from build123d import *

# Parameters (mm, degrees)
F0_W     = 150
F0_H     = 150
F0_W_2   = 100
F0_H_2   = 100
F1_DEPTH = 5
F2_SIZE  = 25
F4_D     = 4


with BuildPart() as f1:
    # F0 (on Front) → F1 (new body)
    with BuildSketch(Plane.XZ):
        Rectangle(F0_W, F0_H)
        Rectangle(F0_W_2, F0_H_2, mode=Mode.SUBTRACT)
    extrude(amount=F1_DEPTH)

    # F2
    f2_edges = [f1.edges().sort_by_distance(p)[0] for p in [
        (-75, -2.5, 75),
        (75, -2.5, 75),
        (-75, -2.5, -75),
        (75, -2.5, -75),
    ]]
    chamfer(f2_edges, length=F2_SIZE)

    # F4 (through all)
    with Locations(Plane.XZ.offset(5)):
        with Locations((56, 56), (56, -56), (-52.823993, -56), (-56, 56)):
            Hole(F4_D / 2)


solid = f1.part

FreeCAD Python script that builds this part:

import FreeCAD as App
import Part
import Sketcher

V = App.Vector


def edges_at(feature, points):
    """Names of the edges that pass closest to the given points."""
    edges = feature.Shape.Edges
    near = lambda p: min(range(len(edges)), key=lambda i: edges[i].distToShape(Part.Vertex(*p))[0])
    return sorted({f"Edge{near(p) + 1}" for p in points})

doc = App.newDocument("Part")
body = doc.addObject("PartDesign::Body", "Body")

# Sketch on XZ plane
sketch1 = body.newObject("Sketcher::SketchObject", "Sketch")
sketch1.AttachmentSupport = (doc.getObject("XZ_Plane"), [""])
sketch1.MapMode = "FlatFace"
sketch1.addGeometry([
    Part.LineSegment(V(-75, 75, 0), V(-75, -75, 0)),  # 0
    Part.LineSegment(V(-75, -75, 0), V(75, -75, 0)),  # 1
    Part.LineSegment(V(75, -75, 0), V(75, 75, 0)),  # 2
    Part.LineSegment(V(75, 75, 0), V(-75, 75, 0)),  # 3
    Part.LineSegment(V(50, -50, 0), V(-50, -50, 0)),  # 4
    Part.LineSegment(V(-50, -50, 0), V(-50, 50, 0)),  # 5
    Part.LineSegment(V(-50, 50, 0), V(50, 50, 0)),  # 6
    Part.LineSegment(V(50, 50, 0), V(50, -50, 0)),  # 7
], False)
sketch1.addConstraint([
    Sketcher.Constraint("Coincident", 0, 2, 1, 1),
    Sketcher.Constraint("Coincident", 1, 2, 2, 1),
    Sketcher.Constraint("Coincident", 2, 2, 3, 1),
    Sketcher.Constraint("Coincident", 3, 2, 0, 1),
    Sketcher.Constraint("Coincident", 4, 2, 5, 1),
    Sketcher.Constraint("Coincident", 5, 2, 6, 1),
    Sketcher.Constraint("Coincident", 6, 2, 7, 1),
    Sketcher.Constraint("Coincident", 7, 2, 4, 1),
    Sketcher.Constraint("Vertical", 0),
    Sketcher.Constraint("Horizontal", 1),
    Sketcher.Constraint("Vertical", 2),
    Sketcher.Constraint("Horizontal", 3),
    Sketcher.Constraint("Horizontal", 4),
    Sketcher.Constraint("Vertical", 5),
    Sketcher.Constraint("Horizontal", 6),
    Sketcher.Constraint("Vertical", 7),
    Sketcher.Constraint("Symmetric", 0, 2, 2, 2, -1, 1),
    Sketcher.Constraint("Symmetric", 4, 2, 6, 2, -1, 1),
    Sketcher.Constraint("Equal", 3, 0),
    Sketcher.Constraint("Equal", 6, 5),
    Sketcher.Constraint("DistanceX", 1, 1, 1, 2, 150.0),
    Sketcher.Constraint("DistanceX", 4, 2, 4, 1, 100.0),
])
pad1 = body.newObject("PartDesign::Pad", "Pad")
pad1.Profile = sketch1
pad1.Length = 5
doc.recompute()

chamfer = body.newObject("PartDesign::Chamfer", "Chamfer")
chamfer.Base = (pad1, edges_at(pad1, [
    (-75, -2.5, 75),
    (75, -2.5, 75),
    (-75, -2.5, -75),
    (75, -2.5, -75),
]))
chamfer.Size = 25

# Sketch on XZ plane
sketch2 = body.newObject("Sketcher::SketchObject", "Sketch001")
sketch2.AttachmentSupport = (doc.getObject("XZ_Plane"), [""])
sketch2.MapMode = "FlatFace"
sketch2.AttachmentOffset = App.Placement(V(0, 0, 5), App.Rotation())
sketch2.addGeometry([
    Part.Circle(V(56, 56, 0), V(0, 0, 1), 2),
    Part.Circle(V(56, -56, 0), V(0, 0, 1), 2),
    Part.Circle(V(-52.8, -56, 0), V(0, 0, 1), 2),
    Part.Circle(V(-56, 56, 0), V(0, 0, 1), 2),
], False)
sketch2.addConstraint([
    Sketcher.Constraint("Equal", 0, 1),
    Sketcher.Constraint("Equal", 1, 2),
    Sketcher.Constraint("Equal", 2, 3),
    Sketcher.Constraint("Symmetric", 1, 3, 3, 3, -1, 1),
    Sketcher.Constraint("Symmetric", 0, 3, 3, 3, -2),
    Sketcher.Constraint("Horizontal", 1, 3, 2, 3),
    Sketcher.Constraint("Diameter", 0, 4.0),
    Sketcher.Constraint("DistanceX", -1, 1, 0, 3, 56.0),
    Sketcher.Constraint("DistanceY", -1, 1, 0, 3, 56.0),
    Sketcher.Constraint("DistanceX", 2, 3, -1, 1, 52.823993),
])
doc.recompute()
hole = body.newObject("PartDesign::Hole", "Hole")
hole.Profile = sketch2
hole.ThreadType = "None"
hole.Diameter = 4
hole.DepthType = "ThroughAll"

doc.recompute()
